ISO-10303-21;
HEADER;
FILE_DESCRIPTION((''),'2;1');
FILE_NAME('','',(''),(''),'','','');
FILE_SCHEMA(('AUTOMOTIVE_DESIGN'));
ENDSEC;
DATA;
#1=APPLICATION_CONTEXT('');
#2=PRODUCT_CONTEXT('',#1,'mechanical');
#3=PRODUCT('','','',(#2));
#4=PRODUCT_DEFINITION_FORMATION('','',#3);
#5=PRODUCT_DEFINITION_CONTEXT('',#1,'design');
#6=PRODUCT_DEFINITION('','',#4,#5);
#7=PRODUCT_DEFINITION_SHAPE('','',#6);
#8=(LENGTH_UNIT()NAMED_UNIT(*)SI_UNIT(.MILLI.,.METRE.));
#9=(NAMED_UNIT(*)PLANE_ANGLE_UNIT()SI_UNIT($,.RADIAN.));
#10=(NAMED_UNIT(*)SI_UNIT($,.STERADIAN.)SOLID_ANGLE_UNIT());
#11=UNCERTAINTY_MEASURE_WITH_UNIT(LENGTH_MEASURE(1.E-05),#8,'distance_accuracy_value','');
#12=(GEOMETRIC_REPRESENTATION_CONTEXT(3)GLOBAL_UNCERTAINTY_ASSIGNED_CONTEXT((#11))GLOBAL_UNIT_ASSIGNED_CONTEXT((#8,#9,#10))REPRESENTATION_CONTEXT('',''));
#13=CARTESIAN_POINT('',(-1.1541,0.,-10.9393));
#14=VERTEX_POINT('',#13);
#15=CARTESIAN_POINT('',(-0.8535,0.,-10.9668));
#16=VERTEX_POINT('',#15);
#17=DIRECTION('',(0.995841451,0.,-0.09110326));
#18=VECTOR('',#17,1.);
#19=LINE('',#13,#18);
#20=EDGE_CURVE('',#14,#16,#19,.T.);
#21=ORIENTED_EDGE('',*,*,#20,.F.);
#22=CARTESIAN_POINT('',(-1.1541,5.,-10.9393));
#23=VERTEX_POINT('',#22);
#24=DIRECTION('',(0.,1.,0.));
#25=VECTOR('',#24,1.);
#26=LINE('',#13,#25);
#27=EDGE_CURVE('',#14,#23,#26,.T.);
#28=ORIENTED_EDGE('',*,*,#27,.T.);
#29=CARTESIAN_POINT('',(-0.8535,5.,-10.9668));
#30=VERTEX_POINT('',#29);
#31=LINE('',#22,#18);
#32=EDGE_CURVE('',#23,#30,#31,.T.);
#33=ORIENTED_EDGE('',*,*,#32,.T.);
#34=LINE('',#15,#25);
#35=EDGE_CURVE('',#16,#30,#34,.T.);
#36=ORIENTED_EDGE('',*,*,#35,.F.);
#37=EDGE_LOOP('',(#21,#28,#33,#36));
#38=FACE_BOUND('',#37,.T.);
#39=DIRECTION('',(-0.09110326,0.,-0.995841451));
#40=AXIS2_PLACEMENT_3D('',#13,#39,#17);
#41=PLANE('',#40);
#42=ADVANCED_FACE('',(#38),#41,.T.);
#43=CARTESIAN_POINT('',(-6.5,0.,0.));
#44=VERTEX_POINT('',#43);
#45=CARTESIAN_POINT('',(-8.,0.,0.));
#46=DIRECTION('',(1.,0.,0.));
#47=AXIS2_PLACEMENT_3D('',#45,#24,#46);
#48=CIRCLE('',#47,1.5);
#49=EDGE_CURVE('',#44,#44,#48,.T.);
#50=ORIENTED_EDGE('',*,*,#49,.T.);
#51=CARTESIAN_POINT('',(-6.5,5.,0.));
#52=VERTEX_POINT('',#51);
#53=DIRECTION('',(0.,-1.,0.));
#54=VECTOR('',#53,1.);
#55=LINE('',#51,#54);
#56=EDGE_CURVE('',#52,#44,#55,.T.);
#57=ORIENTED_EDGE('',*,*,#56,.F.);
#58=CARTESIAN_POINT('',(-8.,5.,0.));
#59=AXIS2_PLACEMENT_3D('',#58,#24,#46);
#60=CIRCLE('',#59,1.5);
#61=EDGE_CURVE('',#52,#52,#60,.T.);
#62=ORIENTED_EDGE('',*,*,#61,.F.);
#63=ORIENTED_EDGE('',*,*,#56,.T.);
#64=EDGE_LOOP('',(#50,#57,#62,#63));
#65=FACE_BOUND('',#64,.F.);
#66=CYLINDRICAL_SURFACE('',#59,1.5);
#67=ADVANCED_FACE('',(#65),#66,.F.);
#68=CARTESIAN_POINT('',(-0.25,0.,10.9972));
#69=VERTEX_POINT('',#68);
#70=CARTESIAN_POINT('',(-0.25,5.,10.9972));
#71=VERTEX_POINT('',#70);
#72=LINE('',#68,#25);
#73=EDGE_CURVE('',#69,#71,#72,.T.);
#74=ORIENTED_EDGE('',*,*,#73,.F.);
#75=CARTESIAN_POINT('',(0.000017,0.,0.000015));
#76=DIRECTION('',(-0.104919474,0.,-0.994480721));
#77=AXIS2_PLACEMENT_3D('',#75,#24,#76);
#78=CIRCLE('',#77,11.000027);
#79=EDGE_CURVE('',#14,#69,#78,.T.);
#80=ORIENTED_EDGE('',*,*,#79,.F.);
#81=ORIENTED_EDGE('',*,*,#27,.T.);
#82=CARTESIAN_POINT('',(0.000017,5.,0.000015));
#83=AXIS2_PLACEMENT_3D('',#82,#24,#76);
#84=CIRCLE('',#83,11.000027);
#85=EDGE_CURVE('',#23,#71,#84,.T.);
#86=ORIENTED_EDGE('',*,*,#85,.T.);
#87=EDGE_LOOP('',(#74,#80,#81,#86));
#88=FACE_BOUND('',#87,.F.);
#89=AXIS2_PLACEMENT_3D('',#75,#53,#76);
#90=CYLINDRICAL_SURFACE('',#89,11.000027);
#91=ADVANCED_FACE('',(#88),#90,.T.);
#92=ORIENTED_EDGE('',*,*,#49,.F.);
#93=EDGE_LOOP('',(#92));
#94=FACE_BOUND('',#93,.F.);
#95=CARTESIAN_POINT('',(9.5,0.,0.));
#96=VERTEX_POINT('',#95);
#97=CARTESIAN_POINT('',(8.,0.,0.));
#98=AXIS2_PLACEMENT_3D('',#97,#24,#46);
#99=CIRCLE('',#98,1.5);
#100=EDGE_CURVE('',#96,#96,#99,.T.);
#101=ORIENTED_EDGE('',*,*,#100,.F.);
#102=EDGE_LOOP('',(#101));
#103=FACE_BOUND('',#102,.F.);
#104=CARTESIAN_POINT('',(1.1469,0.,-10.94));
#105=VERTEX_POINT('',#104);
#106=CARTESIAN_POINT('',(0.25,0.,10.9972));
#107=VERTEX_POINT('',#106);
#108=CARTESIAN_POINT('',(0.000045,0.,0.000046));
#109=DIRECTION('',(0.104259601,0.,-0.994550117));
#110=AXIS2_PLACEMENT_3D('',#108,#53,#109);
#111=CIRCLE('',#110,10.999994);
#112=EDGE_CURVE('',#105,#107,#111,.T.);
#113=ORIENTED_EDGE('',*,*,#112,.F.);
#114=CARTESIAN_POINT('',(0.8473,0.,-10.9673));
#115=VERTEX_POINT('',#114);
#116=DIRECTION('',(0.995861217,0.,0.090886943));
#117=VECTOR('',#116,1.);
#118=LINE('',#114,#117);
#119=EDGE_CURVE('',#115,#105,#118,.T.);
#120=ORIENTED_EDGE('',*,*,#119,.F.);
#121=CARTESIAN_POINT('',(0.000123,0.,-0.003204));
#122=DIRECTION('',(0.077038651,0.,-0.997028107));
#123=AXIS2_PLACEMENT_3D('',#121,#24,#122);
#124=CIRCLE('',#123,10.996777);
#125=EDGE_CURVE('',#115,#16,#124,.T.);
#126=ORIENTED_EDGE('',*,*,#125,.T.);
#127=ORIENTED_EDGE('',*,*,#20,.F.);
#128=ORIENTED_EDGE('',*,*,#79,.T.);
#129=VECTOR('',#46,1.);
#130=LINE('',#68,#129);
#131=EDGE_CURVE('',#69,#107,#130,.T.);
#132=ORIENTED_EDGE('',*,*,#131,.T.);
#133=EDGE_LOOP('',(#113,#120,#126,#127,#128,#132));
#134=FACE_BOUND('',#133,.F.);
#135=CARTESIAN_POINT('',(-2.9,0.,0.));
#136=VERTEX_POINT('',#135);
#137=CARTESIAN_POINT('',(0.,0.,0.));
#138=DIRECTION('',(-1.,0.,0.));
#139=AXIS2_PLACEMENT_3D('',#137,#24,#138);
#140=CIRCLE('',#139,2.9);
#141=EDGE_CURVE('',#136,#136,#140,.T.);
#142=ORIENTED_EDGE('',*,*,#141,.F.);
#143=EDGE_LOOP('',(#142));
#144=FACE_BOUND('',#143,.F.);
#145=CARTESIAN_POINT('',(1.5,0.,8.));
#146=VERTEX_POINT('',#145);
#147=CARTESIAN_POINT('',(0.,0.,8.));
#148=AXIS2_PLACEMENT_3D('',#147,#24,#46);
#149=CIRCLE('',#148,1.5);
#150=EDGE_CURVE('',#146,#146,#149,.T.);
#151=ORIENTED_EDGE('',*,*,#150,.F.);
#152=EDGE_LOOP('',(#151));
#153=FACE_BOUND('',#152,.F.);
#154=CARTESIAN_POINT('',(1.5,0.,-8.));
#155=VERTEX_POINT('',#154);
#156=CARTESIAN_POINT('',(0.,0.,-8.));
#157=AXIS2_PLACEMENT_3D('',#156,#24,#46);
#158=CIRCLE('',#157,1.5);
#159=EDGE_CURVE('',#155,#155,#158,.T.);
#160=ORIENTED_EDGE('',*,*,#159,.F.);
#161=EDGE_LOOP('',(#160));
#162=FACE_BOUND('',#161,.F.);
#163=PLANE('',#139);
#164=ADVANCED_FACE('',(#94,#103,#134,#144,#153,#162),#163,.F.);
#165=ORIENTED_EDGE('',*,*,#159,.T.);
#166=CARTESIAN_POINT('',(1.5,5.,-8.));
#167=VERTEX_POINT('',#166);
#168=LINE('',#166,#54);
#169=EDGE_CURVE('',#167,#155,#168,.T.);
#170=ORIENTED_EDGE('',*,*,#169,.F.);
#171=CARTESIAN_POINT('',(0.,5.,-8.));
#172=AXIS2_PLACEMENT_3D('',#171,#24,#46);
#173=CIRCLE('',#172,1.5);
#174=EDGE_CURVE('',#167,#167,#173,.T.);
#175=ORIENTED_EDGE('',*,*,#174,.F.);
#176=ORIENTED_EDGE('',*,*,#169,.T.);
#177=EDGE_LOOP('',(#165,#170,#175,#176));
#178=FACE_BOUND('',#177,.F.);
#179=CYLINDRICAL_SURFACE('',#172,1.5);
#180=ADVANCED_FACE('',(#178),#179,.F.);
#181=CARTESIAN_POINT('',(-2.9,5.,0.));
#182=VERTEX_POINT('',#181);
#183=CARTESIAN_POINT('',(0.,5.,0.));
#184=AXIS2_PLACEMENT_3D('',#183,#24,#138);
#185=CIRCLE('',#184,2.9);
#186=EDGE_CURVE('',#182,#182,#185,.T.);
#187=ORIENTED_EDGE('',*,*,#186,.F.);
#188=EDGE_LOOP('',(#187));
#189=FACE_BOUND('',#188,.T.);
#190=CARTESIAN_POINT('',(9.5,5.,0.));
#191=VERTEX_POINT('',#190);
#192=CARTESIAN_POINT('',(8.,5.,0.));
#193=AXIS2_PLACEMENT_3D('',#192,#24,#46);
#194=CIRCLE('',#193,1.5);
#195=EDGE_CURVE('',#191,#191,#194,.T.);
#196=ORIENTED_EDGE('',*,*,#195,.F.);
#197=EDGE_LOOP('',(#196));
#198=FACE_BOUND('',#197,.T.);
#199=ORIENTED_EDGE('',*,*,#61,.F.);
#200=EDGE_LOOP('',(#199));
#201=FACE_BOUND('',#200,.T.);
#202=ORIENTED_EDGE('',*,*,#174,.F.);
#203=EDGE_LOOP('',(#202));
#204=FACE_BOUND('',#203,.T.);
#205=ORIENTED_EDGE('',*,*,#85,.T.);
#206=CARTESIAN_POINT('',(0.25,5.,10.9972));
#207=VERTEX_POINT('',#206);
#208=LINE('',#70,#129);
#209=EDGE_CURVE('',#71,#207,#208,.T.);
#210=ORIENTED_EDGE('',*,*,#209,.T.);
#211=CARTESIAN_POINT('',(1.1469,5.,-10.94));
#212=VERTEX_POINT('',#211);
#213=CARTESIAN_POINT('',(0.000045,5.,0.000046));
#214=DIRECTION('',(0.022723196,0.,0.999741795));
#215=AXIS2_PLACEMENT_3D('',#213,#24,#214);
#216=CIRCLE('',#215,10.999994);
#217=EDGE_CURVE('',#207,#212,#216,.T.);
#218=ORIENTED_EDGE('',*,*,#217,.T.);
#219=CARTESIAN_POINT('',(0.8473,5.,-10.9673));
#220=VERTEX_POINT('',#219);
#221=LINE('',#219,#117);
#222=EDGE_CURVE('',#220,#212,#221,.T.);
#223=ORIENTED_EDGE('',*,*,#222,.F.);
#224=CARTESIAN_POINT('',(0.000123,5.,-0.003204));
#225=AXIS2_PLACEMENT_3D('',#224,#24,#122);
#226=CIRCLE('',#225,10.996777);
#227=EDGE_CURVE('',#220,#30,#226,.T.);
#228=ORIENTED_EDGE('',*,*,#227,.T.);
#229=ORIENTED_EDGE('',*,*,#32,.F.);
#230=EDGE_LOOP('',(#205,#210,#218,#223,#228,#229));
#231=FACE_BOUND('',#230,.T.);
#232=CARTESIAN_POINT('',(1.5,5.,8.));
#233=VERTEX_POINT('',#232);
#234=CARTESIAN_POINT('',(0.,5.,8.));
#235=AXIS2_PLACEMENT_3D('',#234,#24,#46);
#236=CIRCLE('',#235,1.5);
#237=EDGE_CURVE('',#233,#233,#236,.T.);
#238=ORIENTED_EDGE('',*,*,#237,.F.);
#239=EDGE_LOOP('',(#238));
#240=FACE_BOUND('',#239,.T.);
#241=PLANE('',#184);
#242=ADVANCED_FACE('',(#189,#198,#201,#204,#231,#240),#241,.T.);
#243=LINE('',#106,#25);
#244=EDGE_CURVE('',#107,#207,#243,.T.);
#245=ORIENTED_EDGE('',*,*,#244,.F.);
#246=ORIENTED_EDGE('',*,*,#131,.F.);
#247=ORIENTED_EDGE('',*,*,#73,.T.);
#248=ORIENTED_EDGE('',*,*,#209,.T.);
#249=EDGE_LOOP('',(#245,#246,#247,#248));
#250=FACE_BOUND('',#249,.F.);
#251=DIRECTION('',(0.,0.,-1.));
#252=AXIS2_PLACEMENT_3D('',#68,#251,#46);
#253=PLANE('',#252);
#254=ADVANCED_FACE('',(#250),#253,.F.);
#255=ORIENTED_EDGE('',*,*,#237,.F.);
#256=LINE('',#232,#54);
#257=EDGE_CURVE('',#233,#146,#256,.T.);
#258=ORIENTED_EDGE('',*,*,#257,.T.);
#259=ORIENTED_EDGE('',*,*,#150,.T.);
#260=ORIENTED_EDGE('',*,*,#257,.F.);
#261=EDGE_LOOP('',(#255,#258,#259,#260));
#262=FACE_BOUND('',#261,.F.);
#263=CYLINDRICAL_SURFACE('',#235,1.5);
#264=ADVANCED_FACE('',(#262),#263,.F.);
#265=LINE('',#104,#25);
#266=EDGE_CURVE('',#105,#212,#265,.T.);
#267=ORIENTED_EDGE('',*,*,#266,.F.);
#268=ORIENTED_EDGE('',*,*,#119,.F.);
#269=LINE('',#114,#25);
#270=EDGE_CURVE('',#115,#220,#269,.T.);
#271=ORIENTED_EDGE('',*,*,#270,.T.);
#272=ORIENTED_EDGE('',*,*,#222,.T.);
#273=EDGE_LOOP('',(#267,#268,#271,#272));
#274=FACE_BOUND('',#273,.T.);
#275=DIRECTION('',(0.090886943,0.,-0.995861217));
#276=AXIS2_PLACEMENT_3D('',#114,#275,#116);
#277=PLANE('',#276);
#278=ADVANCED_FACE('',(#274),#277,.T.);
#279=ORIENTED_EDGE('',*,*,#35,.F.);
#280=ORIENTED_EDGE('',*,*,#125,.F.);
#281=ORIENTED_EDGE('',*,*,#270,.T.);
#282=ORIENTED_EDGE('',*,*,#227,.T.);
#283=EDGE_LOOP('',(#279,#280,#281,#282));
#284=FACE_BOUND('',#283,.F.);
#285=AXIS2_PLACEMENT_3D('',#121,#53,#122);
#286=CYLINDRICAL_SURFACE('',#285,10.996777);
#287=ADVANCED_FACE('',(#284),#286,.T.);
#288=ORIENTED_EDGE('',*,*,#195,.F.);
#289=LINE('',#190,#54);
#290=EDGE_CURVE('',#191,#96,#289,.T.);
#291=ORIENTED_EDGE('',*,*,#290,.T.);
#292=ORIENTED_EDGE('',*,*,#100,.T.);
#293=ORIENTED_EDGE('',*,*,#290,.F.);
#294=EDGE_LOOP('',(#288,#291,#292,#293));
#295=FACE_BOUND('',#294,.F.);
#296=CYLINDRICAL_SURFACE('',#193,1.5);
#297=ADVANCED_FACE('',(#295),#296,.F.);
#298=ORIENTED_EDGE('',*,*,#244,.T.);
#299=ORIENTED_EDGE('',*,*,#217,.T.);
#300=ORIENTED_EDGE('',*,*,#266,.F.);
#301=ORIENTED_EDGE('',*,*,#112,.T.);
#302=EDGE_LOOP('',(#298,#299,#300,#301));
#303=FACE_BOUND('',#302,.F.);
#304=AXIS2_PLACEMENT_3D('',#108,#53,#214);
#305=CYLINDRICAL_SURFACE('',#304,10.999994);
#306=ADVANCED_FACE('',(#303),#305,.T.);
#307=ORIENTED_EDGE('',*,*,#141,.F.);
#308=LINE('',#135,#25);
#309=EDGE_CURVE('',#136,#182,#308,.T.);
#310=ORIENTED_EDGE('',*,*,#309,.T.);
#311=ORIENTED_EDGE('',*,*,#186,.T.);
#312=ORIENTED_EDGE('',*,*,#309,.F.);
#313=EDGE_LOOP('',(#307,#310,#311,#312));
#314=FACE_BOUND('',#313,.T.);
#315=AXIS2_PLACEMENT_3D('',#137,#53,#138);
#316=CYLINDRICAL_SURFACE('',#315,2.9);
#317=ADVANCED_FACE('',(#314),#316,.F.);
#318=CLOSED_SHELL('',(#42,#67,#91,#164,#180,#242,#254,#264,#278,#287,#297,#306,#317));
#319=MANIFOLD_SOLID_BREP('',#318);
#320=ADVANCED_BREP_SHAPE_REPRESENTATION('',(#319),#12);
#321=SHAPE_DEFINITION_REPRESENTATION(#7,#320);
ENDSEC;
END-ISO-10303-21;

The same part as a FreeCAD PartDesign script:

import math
import FreeCAD as App
import Part
import Sketcher

V = App.Vector
Q = App.Units.Quantity

doc = App.newDocument("Part")
body = doc.addObject("PartDesign::Body", "Body")

# Sketch on XZ plane
sketch1 = doc.addObject("Sketcher::SketchObject", "Sketch")
body.addObject(sketch1)
sketch1.AttachmentSupport = (doc.XZ_Plane, [""])
sketch1.MapMode = "FlatFace"
sketch1.addGeometry([
    Part.ArcOfCircle(Part.Circle(V(0, 0, 0), V(0, 0, 1), 11), math.radians(91), math.radians(264)),  # 0
    Part.LineSegment(V(-0.25, 11, 0), V(0.25, 11, 0)),  # 1
    Part.ArcOfCircle(Part.Circle(V(0, 0, 0), V(0, 0, 1), 11), math.radians(-84), math.radians(89)),  # 2
    Part.LineSegment(V(1.15, -10.94, 0), V(0.85, -10.97, 0)),  # 3
    Part.ArcOfCircle(Part.Circle(V(0, 0, 0), V(0, 0, 1), 11), math.radians(-94.45), math.radians(-85.58)),  # 4
    Part.LineSegment(V(-0.85, -10.97, 0), V(-1.15, -10.94, 0)),  # 5
    Part.Circle(V(0, 8, 0), V(0, 0, 1), 1.25),  # 6
    Part.Circle(V(0, -8, 0), V(0, 0, 1), 1.25),  # 7
    Part.Circle(V(8, 0, 0), V(0, 0, 1), 1.25),  # 8
    Part.Circle(V(0, 0, 0), V(0, 0, 1), 2.9),  # 9
    Part.Circle(V(-8, 0, 0), V(0, 0, 1), 1.25),  # 10
], False)
sketch1.addConstraint([
    Sketcher.Constraint("Coincident", 0, 1, 1, 1),
    Sketcher.Constraint("Coincident", 1, 2, 2, 2),
    Sketcher.Constraint("Coincident", 2, 1, 3, 1),
    Sketcher.Constraint("Coincident", 3, 2, 4, 2),
    Sketcher.Constraint("Coincident", 4, 1, 5, 1),
    Sketcher.Constraint("Coincident", 5, 2, 0, 2),
    Sketcher.Constraint("Horizontal", 1),
    Sketcher.Constraint("Coincident", 0, 3, -1, 1),
    Sketcher.Constraint("Coincident", 2, 3, -1, 1),
    Sketcher.Constraint("Coincident", 9, 3, -1, 1),
    Sketcher.Constraint("Equal", 0, 2),
    Sketcher.Constraint("Equal", 6, 7),
    Sketcher.Constraint("Equal", 7, 8),
    Sketcher.Constraint("Equal", 8, 10),
    Sketcher.Constraint("Symmetric", 6, 3, 7, 3, -1, 1),
    Sketcher.Constraint("Symmetric", 8, 3, 10, 3, -1, 1),
    Sketcher.Constraint("PointOnObject", 4, 3, -2),
    Sketcher.Constraint("PointOnObject", 6, 3, -2),
    Sketcher.Constraint("PointOnObject", 8, 3, -1),
    Sketcher.Constraint("Radius", 0, Q("11 mm")),
    Sketcher.Constraint("Diameter", 6, Q("2.5 mm")),
    Sketcher.Constraint("Diameter", 9, Q("5.8 mm")),
    Sketcher.Constraint("DistanceX", 1, 1, 1, 2, Q("0.5 mm")),
    Sketcher.Constraint("DistanceY", -1, 1, 6, 3, Q("8 mm")),
    Sketcher.Constraint("DistanceX", -1, 1, 8, 3, Q("8 mm")),
    Sketcher.Constraint("Radius", 4, Q("10.9968 mm")),
    Sketcher.Constraint("DistanceY", 2, 1, -1, 1, Q("10.94 mm")),
    Sketcher.Constraint("DistanceX", 5, 2, -1, 1, Q("1.154 mm")),
    Sketcher.Constraint("DistanceY", 3, 2, 4, 3, Q("10.964 mm")),
    Sketcher.Constraint("DistanceY", 3, 2, 5, 2, Q("0.028 mm")),
    Sketcher.Constraint("Distance", 5, Q("0.3019 mm")),
])
pad1 = doc.addObject("PartDesign::Pad", "Pad")
body.addObject(pad1)
pad1.Profile = sketch1
pad1.Length = 5
pad1.Reversed = True

# Sketch on XZ plane
sketch2 = doc.addObject("Sketcher::SketchObject", "Sketch001")
body.addObject(sketch2)
sketch2.AttachmentSupport = (doc.XZ_Plane, [""])
sketch2.MapMode = "FlatFace"
sketch2.AttachmentOffset = App.Placement(V(0, 0, -5), App.Rotation())
sketch2.addGeometry([
    Part.Circle(V(0, 8, 0), V(0, 0, 1), 1.5),
    Part.Circle(V(-8, 0, 0), V(0, 0, 1), 1.5),
    Part.Circle(V(0, -8, 0), V(0, 0, 1), 1.5),
    Part.Circle(V(8, 0, 0), V(0, 0, 1), 1.5),
], False)
sketch2.addConstraint([
    Sketcher.Constraint("Equal", 0, 1),
    Sketcher.Constraint("Equal", 1, 2),
    Sketcher.Constraint("Equal", 2, 3),
    Sketcher.Constraint("Symmetric", 0, 3, 2, 3, -1, 1),
    Sketcher.Constraint("Symmetric", 1, 3, 3, 3, -1, 1),
    Sketcher.Constraint("PointOnObject", 0, 3, -2),
    Sketcher.Constraint("PointOnObject", 1, 3, -1),
    Sketcher.Constraint("Diameter", 0, Q("3 mm")),
    Sketcher.Constraint("DistanceY", -1, 1, 0, 3, Q("8 mm")),
    Sketcher.Constraint("DistanceX", 1, 3, -1, 1, Q("8 mm")),
])
pocket1 = doc.addObject("PartDesign::Pocket", "Pocket")
body.addObject(pocket1)
pocket1.Profile = sketch2
pocket1.Length = 10
pocket1.Reversed = True

doc.recompute()
